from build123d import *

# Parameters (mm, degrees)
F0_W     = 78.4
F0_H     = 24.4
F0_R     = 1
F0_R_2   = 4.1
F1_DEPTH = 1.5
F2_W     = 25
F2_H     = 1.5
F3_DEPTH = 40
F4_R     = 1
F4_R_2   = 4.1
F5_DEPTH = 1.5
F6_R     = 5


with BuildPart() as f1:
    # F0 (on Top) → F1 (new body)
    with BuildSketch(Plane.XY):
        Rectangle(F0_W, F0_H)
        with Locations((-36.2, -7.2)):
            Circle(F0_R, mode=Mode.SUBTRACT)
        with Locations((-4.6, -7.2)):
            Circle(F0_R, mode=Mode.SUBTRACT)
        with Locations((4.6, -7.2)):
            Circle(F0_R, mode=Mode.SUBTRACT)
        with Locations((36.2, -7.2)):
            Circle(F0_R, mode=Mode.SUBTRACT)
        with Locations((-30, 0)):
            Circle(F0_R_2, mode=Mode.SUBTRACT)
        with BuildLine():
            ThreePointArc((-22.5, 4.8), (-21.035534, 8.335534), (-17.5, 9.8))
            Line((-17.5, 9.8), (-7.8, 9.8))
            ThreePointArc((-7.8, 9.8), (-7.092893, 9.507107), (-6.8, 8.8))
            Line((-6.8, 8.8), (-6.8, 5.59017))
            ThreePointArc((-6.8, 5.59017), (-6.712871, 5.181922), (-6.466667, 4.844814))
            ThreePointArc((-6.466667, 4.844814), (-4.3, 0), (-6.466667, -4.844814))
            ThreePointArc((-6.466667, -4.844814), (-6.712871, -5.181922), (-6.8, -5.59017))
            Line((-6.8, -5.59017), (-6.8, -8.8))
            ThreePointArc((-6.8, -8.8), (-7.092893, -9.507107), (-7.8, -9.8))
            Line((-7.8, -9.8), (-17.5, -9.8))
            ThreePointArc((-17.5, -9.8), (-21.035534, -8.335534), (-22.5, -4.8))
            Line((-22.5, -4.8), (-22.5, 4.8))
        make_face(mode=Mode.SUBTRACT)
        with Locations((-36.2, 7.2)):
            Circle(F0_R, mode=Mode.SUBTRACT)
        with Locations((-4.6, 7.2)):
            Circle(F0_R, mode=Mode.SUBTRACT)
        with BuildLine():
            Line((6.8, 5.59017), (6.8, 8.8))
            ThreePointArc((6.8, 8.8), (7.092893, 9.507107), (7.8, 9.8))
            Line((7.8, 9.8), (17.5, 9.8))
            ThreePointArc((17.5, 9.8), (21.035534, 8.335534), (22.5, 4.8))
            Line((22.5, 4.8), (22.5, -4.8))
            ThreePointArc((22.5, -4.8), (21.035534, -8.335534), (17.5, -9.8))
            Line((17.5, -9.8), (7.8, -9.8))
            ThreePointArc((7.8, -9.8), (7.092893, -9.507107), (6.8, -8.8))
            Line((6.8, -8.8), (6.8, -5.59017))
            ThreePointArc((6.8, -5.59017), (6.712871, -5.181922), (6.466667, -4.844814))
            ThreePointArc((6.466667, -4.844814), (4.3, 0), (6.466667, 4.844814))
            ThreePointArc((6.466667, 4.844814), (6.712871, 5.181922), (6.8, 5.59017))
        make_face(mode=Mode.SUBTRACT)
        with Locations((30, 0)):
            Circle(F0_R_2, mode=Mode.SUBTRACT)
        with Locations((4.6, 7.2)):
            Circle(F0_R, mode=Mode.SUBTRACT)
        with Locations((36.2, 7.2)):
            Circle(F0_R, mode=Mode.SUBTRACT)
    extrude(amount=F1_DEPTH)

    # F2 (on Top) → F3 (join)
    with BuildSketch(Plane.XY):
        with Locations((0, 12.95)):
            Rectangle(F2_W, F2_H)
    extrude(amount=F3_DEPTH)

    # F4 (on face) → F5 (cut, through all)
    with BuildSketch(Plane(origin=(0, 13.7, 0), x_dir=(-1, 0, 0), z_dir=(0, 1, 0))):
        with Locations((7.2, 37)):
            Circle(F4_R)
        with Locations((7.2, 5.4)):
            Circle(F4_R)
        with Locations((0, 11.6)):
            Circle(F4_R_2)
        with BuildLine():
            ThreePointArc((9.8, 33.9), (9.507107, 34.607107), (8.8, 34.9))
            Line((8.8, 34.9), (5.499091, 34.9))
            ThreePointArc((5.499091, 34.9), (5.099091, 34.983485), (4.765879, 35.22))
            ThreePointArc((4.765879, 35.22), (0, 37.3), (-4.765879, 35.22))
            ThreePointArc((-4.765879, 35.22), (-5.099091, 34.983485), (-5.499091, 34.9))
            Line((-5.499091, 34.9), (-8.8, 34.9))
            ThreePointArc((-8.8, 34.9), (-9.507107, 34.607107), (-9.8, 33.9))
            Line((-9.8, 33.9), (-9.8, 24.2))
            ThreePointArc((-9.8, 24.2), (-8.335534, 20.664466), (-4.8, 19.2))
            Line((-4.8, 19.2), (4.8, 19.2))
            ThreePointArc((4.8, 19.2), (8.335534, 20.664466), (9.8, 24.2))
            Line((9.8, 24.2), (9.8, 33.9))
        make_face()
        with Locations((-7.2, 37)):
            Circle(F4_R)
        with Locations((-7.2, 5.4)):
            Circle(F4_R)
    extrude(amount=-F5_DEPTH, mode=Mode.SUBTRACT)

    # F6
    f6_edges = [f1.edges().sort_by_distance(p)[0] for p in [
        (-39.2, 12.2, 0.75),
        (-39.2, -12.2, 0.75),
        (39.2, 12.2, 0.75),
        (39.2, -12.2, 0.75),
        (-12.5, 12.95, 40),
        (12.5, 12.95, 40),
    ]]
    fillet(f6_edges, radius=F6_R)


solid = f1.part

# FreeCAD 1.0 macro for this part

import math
import FreeCAD as App
import Part
import Sketcher
from FreeCAD import Vector


def edges_at(feature, points):
    """Names of the edges that pass closest to the given points."""
    edges = feature.Shape.Edges
    near = lambda p: min(range(len(edges)), key=lambda i: edges[i].distToShape(Part.Vertex(*p))[0])
    return sorted({f"Edge{near(p) + 1}" for p in points})


def add_polygon(sketch, points):
    """Adds a closed chain of lines whose ends are joined by coincident constraints."""
    first, n = sketch.GeometryCount, len(points)
    for a, b in zip(points, points[1:] + points[:1]):
        sketch.addGeometry(Part.LineSegment(App.Vector(*a, 0), App.Vector(*b, 0)), False)
    for i in range(n):
        sketch.addConstraint(Sketcher.Constraint("Coincident", first + i, 2, first + (i + 1) % n, 1))

doc = App.newDocument("Part")
params = doc.addObject("Spreadsheet::Sheet", "Params")
for row, (alias, value) in enumerate([
    ("sketch1_diameter", "2 mm"),
    ("sketch1_radius", "5 mm"),
    ("sketch1_diameter2", "8.2 mm"),
    ("sketch1_radius2", "6.499999 mm"),
    ("sketch1_width", "78.4 mm"),
    ("pad1_length", "1.5 mm"),
    ("sketch2_width", "25 mm"),
    ("sketch2_height", "1.5 mm"),
    ("pad2_length", "40 mm"),
    ("sketch3_diameter", "2 mm"),
    ("sketch3_radius", "5 mm"),
    ("sketch3_diameter2", "8.2 mm"),
    ("sketch3_radius2", "6.500001 mm"),
    ("sketch3_width", "9.6 mm"),
    ("fillet_radius", "5 mm"),
], start=1):
    params.set(f"A{row}", alias)
    params.set(f"B{row}", "=" + value)
    params.setAlias(f"B{row}", alias)

body = doc.addObject("PartDesign::Body", "Body")

sketch1 = body.newObject("Sketcher::SketchObject", "Sketch")
sketch1.AttachmentSupport = (doc.getObject("XY_Plane"), [""])
sketch1.MapMode = "FlatFace"
add_polygon(sketch1, [(-39.2, 12.2), (-39.2, -12.2), (39.2, -12.2), (39.2, 12.2)])
sketch1.addGeometry(Part.Circle(Vector(-36.2, -7.2, 0), Vector(0, 0, 1), 1), False)
sketch1.addGeometry(Part.Circle(Vector(-4.6, -7.2, 0), Vector(0, 0, 1), 1), False)
sketch1.addGeometry(Part.Circle(Vector(4.6, -7.2, 0), Vector(0, 0, 1), 1), False)
sketch1.addGeometry(Part.Circle(Vector(36.2, -7.2, 0), Vector(0, 0, 1), 1), False)
sketch1.addGeometry(Part.Circle(Vector(-30, 0, 0), Vector(0, 0, 1), 4.1), False)
sketch1.addGeometry(Part.LineSegment(Vector(-22.5, -4.8, 0), Vector(-22.5, 4.8, 0)), False)
sketch1.addGeometry(Part.ArcOfCircle(Part.Circle(Vector(-17.5, 4.8, 0), Vector(0, 0, 1), 5), math.radians(90), math.radians(180)), False)
sketch1.addGeometry(Part.LineSegment(Vector(-17.5, 9.8, 0), Vector(-7.8, 9.8, 0)), False)
sketch1.addGeometry(Part.ArcOfCircle(Part.Circle(Vector(-7.8, 8.8, 0), Vector(0, 0, 1), 1), math.radians(0), math.radians(90)), False)
sketch1.addGeometry(Part.LineSegment(Vector(-6.8, 8.8, 0), Vector(-6.8, 5.6, 0)), False)
sketch1.addGeometry(Part.ArcOfCircle(Part.Circle(Vector(-5.8, 5.6, 0), Vector(0, 0, 1), 1), math.radians(-180), math.radians(-132)), False)
sketch1.addGeometry(Part.ArcOfCircle(Part.Circle(Vector(-10.8, 0, 0), Vector(0, 0, 1), 6.5), math.radians(-48), math.radians(48)), False)
sketch1.addGeometry(Part.ArcOfCircle(Part.Circle(Vector(-5.8, -5.6, 0), Vector(0, 0, 1), 1), math.radians(132), math.radians(180)), False)
sketch1.addGeometry(Part.LineSegment(Vector(-6.8, -5.6, 0), Vector(-6.8, -8.8, 0)), False)
sketch1.addGeometry(Part.ArcOfCircle(Part.Circle(Vector(-7.8, -8.8, 0), Vector(0, 0, 1), 1), math.radians(-90), math.radians(0)), False)
sketch1.addGeometry(Part.LineSegment(Vector(-7.8, -9.8, 0), Vector(-17.5, -9.8, 0)), False)
sketch1.addGeometry(Part.ArcOfCircle(Part.Circle(Vector(-17.5, -4.8, 0), Vector(0, 0, 1), 5), math.radians(180), math.radians(270)), False)
sketch1.addGeometry(Part.Circle(Vector(-36.2, 7.2, 0), Vector(0, 0, 1), 1), False)
sketch1.addGeometry(Part.Circle(Vector(-4.6, 7.2, 0), Vector(0, 0, 1), 1), False)
sketch1.addGeometry(Part.ArcOfCircle(Part.Circle(Vector(5.8, 5.6, 0), Vector(0, 0, 1), 1), math.radians(-48), math.radians(0)), False)
sketch1.addGeometry(Part.LineSegment(Vector(6.8, 5.6, 0), Vector(6.8, 8.8, 0)), False)
sketch1.addGeometry(Part.ArcOfCircle(Part.Circle(Vector(7.8, 8.8, 0), Vector(0, 0, 1), 1), math.radians(90), math.radians(180)), False)
sketch1.addGeometry(Part.LineSegment(Vector(7.8, 9.8, 0), Vector(17.5, 9.8, 0)), False)
sketch1.addGeometry(Part.ArcOfCircle(Part.Circle(Vector(17.5, 4.8, 0), Vector(0, 0, 1), 5), math.radians(0), math.radians(90)), False)
sketch1.addGeometry(Part.LineSegment(Vector(22.5, 4.8, 0), Vector(22.5, -4.8, 0)), False)
sketch1.addGeometry(Part.ArcOfCircle(Part.Circle(Vector(17.5, -4.8, 0), Vector(0, 0, 1), 5), math.radians(-90), math.radians(0)), False)
sketch1.addGeometry(Part.LineSegment(Vector(17.5, -9.8, 0), Vector(7.8, -9.8, 0)), False)
sketch1.addGeometry(Part.ArcOfCircle(Part.Circle(Vector(7.8, -8.8, 0), Vector(0, 0, 1), 1), math.radians(180), math.radians(270)), False)
sketch1.addGeometry(Part.LineSegment(Vector(6.8, -8.8, 0), Vector(6.8, -5.6, 0)), False)
sketch1.addGeometry(Part.ArcOfCircle(Part.Circle(Vector(5.8, -5.6, 0), Vector(0, 0, 1), 1), math.radians(0), math.radians(48)), False)
sketch1.addGeometry(Part.ArcOfCircle(Part.Circle(Vector(10.8, 0, 0), Vector(0, 0, 1), 6.5), math.radians(132), math.radians(228)), False)
sketch1.addGeometry(Part.Circle(Vector(30, 0, 0), Vector(0, 0, 1), 4.1), False)
sketch1.addGeometry(Part.Circle(Vector(4.6, 7.2, 0), Vector(0, 0, 1), 1), False)
sketch1.addGeometry(Part.Circle(Vector(36.2, 7.2, 0), Vector(0, 0, 1), 1), False)
sketch1.addConstraint(Sketcher.Constraint("Tangent", 9, 2, 10, 2))
sketch1.addConstraint(Sketcher.Constraint("Tangent", 10, 1, 11, 1))
sketch1.addConstraint(Sketcher.Constraint("Tangent", 11, 2, 12, 2))
sketch1.addConstraint(Sketcher.Constraint("Tangent", 12, 1, 13, 1))
sketch1.addConstraint(Sketcher.Constraint("Tangent", 13, 2, 14, 1))
sketch1.addConstraint(Sketcher.Constraint("Tangent", 14, 2, 15, 2))
sketch1.addConstraint(Sketcher.Constraint("Tangent", 15, 1, 16, 1))
sketch1.addConstraint(Sketcher.Constraint("Tangent", 16, 2, 17, 1))
sketch1.addConstraint(Sketcher.Constraint("Tangent", 17, 2, 18, 2))
sketch1.addConstraint(Sketcher.Constraint("Tangent", 18, 1, 19, 1))
sketch1.addConstraint(Sketcher.Constraint("Tangent", 19, 2, 20, 2))
sketch1.addConstraint(Sketcher.Constraint("Tangent", 20, 1, 9, 1))
sketch1.addConstraint(Sketcher.Constraint("Tangent", 23, 2, 24, 1))
sketch1.addConstraint(Sketcher.Constraint("Tangent", 24, 2, 25, 2))
sketch1.addConstraint(Sketcher.Constraint("Tangent", 25, 1, 26, 1))
sketch1.addConstraint(Sketcher.Constraint("Tangent", 26, 2, 27, 2))
sketch1.addConstraint(Sketcher.Constraint("Tangent", 27, 1, 28, 1))
sketch1.addConstraint(Sketcher.Constraint("Tangent", 28, 2, 29, 2))
sketch1.addConstraint(Sketcher.Constraint("Tangent", 29, 1, 30, 1))
sketch1.addConstraint(Sketcher.Constraint("Tangent", 30, 2, 31, 2))
sketch1.addConstraint(Sketcher.Constraint("Tangent", 31, 1, 32, 1))
sketch1.addConstraint(Sketcher.Constraint("Tangent", 32, 2, 33, 1))
sketch1.addConstraint(Sketcher.Constraint("Tangent", 33, 2, 34, 2))
sketch1.addConstraint(Sketcher.Constraint("Tangent", 34, 1, 23, 1))
sketch1.addConstraint(Sketcher.Constraint("Vertical", 0))
sketch1.addConstraint(Sketcher.Constraint("Horizontal", 1))
sketch1.addConstraint(Sketcher.Constraint("Vertical", 2))
sketch1.addConstraint(Sketcher.Constraint("Horizontal", 3))
sketch1.addConstraint(Sketcher.Constraint("Vertical", 9))
sketch1.addConstraint(Sketcher.Constraint("Horizontal", 11))
sketch1.addConstraint(Sketcher.Constraint("Vertical", 13))
sketch1.addConstraint(Sketcher.Constraint("Vertical", 17))
sketch1.addConstraint(Sketcher.Constraint("Horizontal", 19))
sketch1.addConstraint(Sketcher.Constraint("Vertical", 24))
sketch1.addConstraint(Sketcher.Constraint("Horizontal", 26))
sketch1.addConstraint(Sketcher.Constraint("Vertical", 28))
sketch1.addConstraint(Sketcher.Constraint("Horizontal", 30))
sketch1.addConstraint(Sketcher.Constraint("Vertical", 32))
sketch1.addConstraint(Sketcher.Constraint("Equal", 4, 5))
sketch1.addConstraint(Sketcher.Constraint("Equal", 5, 6))
sketch1.addConstraint(Sketcher.Constraint("Equal", 6, 7))
sketch1.addConstraint(Sketcher.Constraint("Equal", 7, 12))
sketch1.addConstraint(Sketcher.Constraint("Equal", 7, 14))
sketch1.addConstraint(Sketcher.Constraint("Equal", 14, 16))
sketch1.addConstraint(Sketcher.Constraint("Equal", 12, 18))
sketch1.addConstraint(Sketcher.Constraint("Equal", 10, 20))
sketch1.addConstraint(Sketcher.Constraint("Equal", 18, 21))
sketch1.addConstraint(Sketcher.Constraint("Equal", 21, 22))
sketch1.addConstraint(Sketcher.Constraint("Equal", 22, 23))
sketch1.addConstraint(Sketcher.Constraint("Equal", 22, 25))
sketch1.addConstraint(Sketcher.Constraint("Equal", 20, 27))
sketch1.addConstraint(Sketcher.Constraint("Equal", 27, 29))
sketch1.addConstraint(Sketcher.Constraint("Equal", 25, 31))
sketch1.addConstraint(Sketcher.Constraint("Equal", 23, 33))
sketch1.addConstraint(Sketcher.Constraint("Equal", 15, 34))
sketch1.addConstraint(Sketcher.Constraint("Equal", 8, 35))
sketch1.addConstraint(Sketcher.Constraint("Equal", 33, 36))
sketch1.addConstraint(Sketcher.Constraint("Equal", 36, 37))
sketch1.addConstraint(Sketcher.Constraint("Symmetric", 7, 3, 21, 3, -1, 1))
sketch1.addConstraint(Sketcher.Constraint("Symmetric", 6, 3, 22, 3, -1, 1))
sketch1.addConstraint(Sketcher.Constraint("Symmetric", 16, 3, 23, 3, -1, 1))
sketch1.addConstraint(Sketcher.Constraint("Symmetric", 20, 3, 27, 3, -1, 1))
sketch1.addConstraint(Sketcher.Constraint("Symmetric", 12, 3, 31, 3, -1, 1))
sketch1.addConstraint(Sketcher.Constraint("Symmetric", 8, 3, 35, 3, -1, 1))
sketch1.addConstraint(Sketcher.Constraint("Symmetric", 5, 3, 36, 3, -1, 1))
sketch1.addConstraint(Sketcher.Constraint("Symmetric", 4, 3, 37, 3, -1, 1))
sketch1.addConstraint(Sketcher.Constraint("Symmetric", 0, 2, 2, 2, -1, 1))
sketch1.addConstraint(Sketcher.Constraint("Symmetric", 5, 3, 6, 3, -2))
sketch1.addConstraint(Sketcher.Constraint("Symmetric", 4, 3, 7, 3, -2))
sketch1.addConstraint(Sketcher.Constraint("Symmetric", 14, 3, 23, 3, -2))
sketch1.addConstraint(Sketcher.Constraint("PointOnObject", 8, 3, -1))
sketch1.addConstraint(Sketcher.Constraint("PointOnObject", 34, 3, -1))
sketch1.addConstraint(Sketcher.Constraint("Horizontal", 4, 3, 5, 3))
sketch1.addConstraint(Sketcher.Constraint("Horizontal", 12, 3, 25, 3))
sketch1.addConstraint(Sketcher.Constraint("Diameter", 4, 2.0))
sketch1.addConstraint(Sketcher.Constraint("Radius", 10, 5.0))
sketch1.addConstraint(Sketcher.Constraint("Diameter", 8, 8.2))
sketch1.addConstraint(Sketcher.Constraint("Radius", 15, 6.499999))
sketch1.addConstraint(Sketcher.Constraint("DistanceX", 1, 1, 1, 2, 78.4))
sketch1.addConstraint(Sketcher.Constraint("DistanceX", 11, 1, 11, 2, 9.7))
sketch1.addConstraint(Sketcher.Constraint("DistanceY", 0, 2, 0, 1, 24.4))
sketch1.addConstraint(Sketcher.Constraint("DistanceY", 9, 1, 9, 2, 9.6))
sketch1.addConstraint(Sketcher.Constraint("DistanceX", 8, 3, -1, 1, 30.0))
sketch1.addConstraint(Sketcher.Constraint("DistanceY", 5, 3, 10, 3, 12.0))
sketch1.addConstraint(Sketcher.Constraint("DistanceX", 15, 3, 14, 3, 5.000001))
sketch1.addConstraint(Sketcher.Constraint("DistanceX", 0, 2, 4, 3, 3.0))
sketch1.addConstraint(Sketcher.Constraint("DistanceX", 5, 3, -1, 1, 4.6))
sketch1.addConstraint(Sketcher.Constraint("DistanceX", 10, 3, -1, 1, 17.5))
sketch1.setExpression("Constraints[78]", "Params.sketch1_diameter")
sketch1.setExpression("Constraints[79]", "Params.sketch1_radius")
sketch1.setExpression("Constraints[80]", "Params.sketch1_diameter2")
sketch1.setExpression("Constraints[81]", "Params.sketch1_radius2")
sketch1.setExpression("Constraints[82]", "Params.sketch1_width")
pad1 = body.newObject("PartDesign::Pad", "Pad")
pad1.Profile = sketch1
pad1.setExpression("Length", "Params.pad1_length")

sketch2 = body.newObject("Sketcher::SketchObject", "Sketch001")
sketch2.AttachmentSupport = (doc.getObject("XY_Plane"), [""])
sketch2.MapMode = "FlatFace"
add_polygon(sketch2, [(-12.5, 13.7), (-12.5, 12.2), (12.5, 12.2), (12.5, 13.7)])
sketch2.addConstraint(Sketcher.Constraint("Vertical", 0))
sketch2.addConstraint(Sketcher.Constraint("Horizontal", 1))
sketch2.addConstraint(Sketcher.Constraint("Vertical", 2))
sketch2.addConstraint(Sketcher.Constraint("Horizontal", 3))
sketch2.addConstraint(Sketcher.Constraint("DistanceX", 1, 1, 1, 2, 25.0))
sketch2.addConstraint(Sketcher.Constraint("DistanceY", 0, 2, 0, 1, 1.5))
sketch2.addConstraint(Sketcher.Constraint("DistanceX", 0, 2, -1, 1, 12.5))
sketch2.addConstraint(Sketcher.Constraint("DistanceY", -1, 1, 0, 2, 12.2))
sketch2.setExpression("Constraints[8]", "Params.sketch2_width")
sketch2.setExpression("Constraints[9]", "Params.sketch2_height")
pad2 = body.newObject("PartDesign::Pad", "Pad001")
pad2.Profile = sketch2
pad2.setExpression("Length", "Params.pad2_length")

sketch3 = body.newObject("Sketcher::SketchObject", "Sketch002")
sketch3.AttachmentSupport = (doc.getObject("XZ_Plane"), [""])
sketch3.MapMode = "FlatFace"
sketch3.AttachmentOffset = App.Placement(Vector(0, 0, -13.7), App.Rotation())
sketch3.addGeometry(Part.Circle(Vector(-7.2, 37, 0), Vector(0, 0, 1), 1), False)
sketch3.addGeometry(Part.Circle(Vector(-7.2, 5.4, 0), Vector(0, 0, 1), 1), False)
sketch3.addGeometry(Part.Circle(Vector(0, 11.6, 0), Vector(0, 0, 1), 4.1), False)
sketch3.addGeometry(Part.ArcOfCircle(Part.Circle(Vector(-8.8, 33.9, 0), Vector(0, 0, 1), 1), math.radians(90), math.radians(180)), False)
sketch3.addGeometry(Part.LineSegment(Vector(-8.8, 34.9, 0), Vector(-5.5, 34.9, 0)), False)
sketch3.addGeometry(Part.ArcOfCircle(Part.Circle(Vector(-5.5, 35.9, 0), Vector(0, 0, 1), 1), math.radians(-90), math.radians(-43)), False)
sketch3.addGeometry(Part.ArcOfCircle(Part.Circle(Vector(0, 30.8, 0), Vector(0, 0, 1), 6.5), math.radians(43), math.radians(137)), False)
sketch3.addGeometry(Part.ArcOfCircle(Part.Circle(Vector(5.5, 35.9, 0), Vector(0, 0, 1), 1), math.radians(-137), math.radians(-90)), False)
sketch3.addGeometry(Part.LineSegment(Vector(5.5, 34.9, 0), Vector(8.8, 34.9, 0)), False)
sketch3.addGeometry(Part.ArcOfCircle(Part.Circle(Vector(8.8, 33.9, 0), Vector(0, 0, 1), 1), math.radians(0), math.radians(90)), False)
sketch3.addGeometry(Part.LineSegment(Vector(9.8, 33.9, 0), Vector(9.8, 24.2, 0)), False)
sketch3.addGeometry(Part.ArcOfCircle(Part.Circle(Vector(4.8, 24.2, 0), Vector(0, 0, 1), 5), math.radians(-90), math.radians(0)), False)
sketch3.addGeometry(Part.LineSegment(Vector(4.8, 19.2, 0), Vector(-4.8, 19.2, 0)), False)
sketch3.addGeometry(Part.ArcOfCircle(Part.Circle(Vector(-4.8, 24.2, 0), Vector(0, 0, 1), 5), math.radians(180), math.radians(270)), False)
sketch3.addGeometry(Part.LineSegment(Vector(-9.8, 24.2, 0), Vector(-9.8, 33.9, 0)), False)
sketch3.addGeometry(Part.Circle(Vector(7.2, 37, 0), Vector(0, 0, 1), 1), False)
sketch3.addGeometry(Part.Circle(Vector(7.2, 5.4, 0), Vector(0, 0, 1), 1), False)
sketch3.addConstraint(Sketcher.Constraint("Tangent", 3, 1, 4, 1))
sketch3.addConstraint(Sketcher.Constraint("Tangent", 4, 2, 5, 1))
sketch3.addConstraint(Sketcher.Constraint("Tangent", 5, 2, 6, 2))
sketch3.addConstraint(Sketcher.Constraint("Tangent", 6, 1, 7, 1))
sketch3.addConstraint(Sketcher.Constraint("Tangent", 7, 2, 8, 1))
sketch3.addConstraint(Sketcher.Constraint("Tangent", 8, 2, 9, 2))
sketch3.addConstraint(Sketcher.Constraint("Tangent", 9, 1, 10, 1))
sketch3.addConstraint(Sketcher.Constraint("Tangent", 10, 2, 11, 2))
sketch3.addConstraint(Sketcher.Constraint("Tangent", 11, 1, 12, 1))
sketch3.addConstraint(Sketcher.Constraint("Tangent", 12, 2, 13, 2))
sketch3.addConstraint(Sketcher.Constraint("Tangent", 13, 1, 14, 1))
sketch3.addConstraint(Sketcher.Constraint("Tangent", 14, 2, 3, 2))
sketch3.addConstraint(Sketcher.Constraint("Horizontal", 4))
sketch3.addConstraint(Sketcher.Constraint("Horizontal", 8))
sketch3.addConstraint(Sketcher.Constraint("Vertical", 10))
sketch3.addConstraint(Sketcher.Constraint("Horizontal", 12))
sketch3.addConstraint(Sketcher.Constraint("Vertical", 14))
sketch3.addConstraint(Sketcher.Constraint("Equal", 0, 1))
sketch3.addConstraint(Sketcher.Constraint("Equal", 1, 3))
sketch3.addConstraint(Sketcher.Constraint("Equal", 3, 5))
sketch3.addConstraint(Sketcher.Constraint("Equal", 5, 7))
sketch3.addConstraint(Sketcher.Constraint("Equal", 7, 9))
sketch3.addConstraint(Sketcher.Constraint("Equal", 11, 13))
sketch3.addConstraint(Sketcher.Constraint("Equal", 9, 15))
sketch3.addConstraint(Sketcher.Constraint("Equal", 15, 16))
sketch3.addConstraint(Sketcher.Constraint("Symmetric", 5, 3, 7, 3, -2))
sketch3.addConstraint(Sketcher.Constraint("Symmetric", 0, 3, 15, 3, -2))
sketch3.addConstraint(Sketcher.Constraint("Symmetric", 1, 3, 16, 3, -2))
sketch3.addConstraint(Sketcher.Constraint("PointOnObject", 2, 3, -2))
sketch3.addConstraint(Sketcher.Constraint("Vertical", 0, 3, 1, 3))
sketch3.addConstraint(Sketcher.Constraint("Equal", 4, 8))
sketch3.addConstraint(Sketcher.Constraint("Diameter", 0, 2.0))
sketch3.addConstraint(Sketcher.Constraint("Radius", 11, 5.0))
sketch3.addConstraint(Sketcher.Constraint("Diameter", 2, 8.2))
sketch3.addConstraint(Sketcher.Constraint("Radius", 6, 6.500001))
sketch3.addConstraint(Sketcher.Constraint("DistanceX", 12, 2, 12, 1, 9.6))
sketch3.addConstraint(Sketcher.Constraint("DistanceY", 10, 2, 10, 1, 9.7))
sketch3.addConstraint(Sketcher.Constraint("DistanceY", -1, 1, 0, 3, 37.0))
sketch3.addConstraint(Sketcher.Constraint("DistanceX", 0, 3, 9, 3, 16.000001))
sketch3.addConstraint(Sketcher.Constraint("DistanceY", -1, 1, 1, 3, 5.4))
sketch3.addConstraint(Sketcher.Constraint("DistanceY", -1, 1, 2, 3, 11.6))
sketch3.addConstraint(Sketcher.Constraint("DistanceY", -1, 1, 3, 3, 33.900001))
sketch3.addConstraint(Sketcher.Constraint("DistanceY", -1, 1, 6, 3, 30.799999))
sketch3.setExpression("Constraints[31]", "Params.sketch3_diameter")
sketch3.setExpression("Constraints[32]", "Params.sketch3_radius")
sketch3.setExpression("Constraints[33]", "Params.sketch3_diameter2")
sketch3.setExpression("Constraints[34]", "Params.sketch3_radius2")
sketch3.setExpression("Constraints[35]", "Params.sketch3_width")
pocket1 = body.newObject("PartDesign::Pocket", "Pocket")
pocket1.Profile = sketch3
pocket1.Type = "ThroughAll"
pocket1.Reversed = True
doc.recompute()

fillet = body.newObject("PartDesign::Fillet", "Fillet")
fillet.Base = (pocket1, edges_at(pocket1, [
    (-39.2, 12.2, 0.75),
    (-39.2, -12.2, 0.75),
    (39.2, 12.2, 0.75),
    (39.2, -12.2, 0.75),
    (-12.5, 12.95, 40),
    (12.5, 12.95, 40),
]))
fillet.setExpression("Radius", "Params.fillet_radius")

doc.recompute()
